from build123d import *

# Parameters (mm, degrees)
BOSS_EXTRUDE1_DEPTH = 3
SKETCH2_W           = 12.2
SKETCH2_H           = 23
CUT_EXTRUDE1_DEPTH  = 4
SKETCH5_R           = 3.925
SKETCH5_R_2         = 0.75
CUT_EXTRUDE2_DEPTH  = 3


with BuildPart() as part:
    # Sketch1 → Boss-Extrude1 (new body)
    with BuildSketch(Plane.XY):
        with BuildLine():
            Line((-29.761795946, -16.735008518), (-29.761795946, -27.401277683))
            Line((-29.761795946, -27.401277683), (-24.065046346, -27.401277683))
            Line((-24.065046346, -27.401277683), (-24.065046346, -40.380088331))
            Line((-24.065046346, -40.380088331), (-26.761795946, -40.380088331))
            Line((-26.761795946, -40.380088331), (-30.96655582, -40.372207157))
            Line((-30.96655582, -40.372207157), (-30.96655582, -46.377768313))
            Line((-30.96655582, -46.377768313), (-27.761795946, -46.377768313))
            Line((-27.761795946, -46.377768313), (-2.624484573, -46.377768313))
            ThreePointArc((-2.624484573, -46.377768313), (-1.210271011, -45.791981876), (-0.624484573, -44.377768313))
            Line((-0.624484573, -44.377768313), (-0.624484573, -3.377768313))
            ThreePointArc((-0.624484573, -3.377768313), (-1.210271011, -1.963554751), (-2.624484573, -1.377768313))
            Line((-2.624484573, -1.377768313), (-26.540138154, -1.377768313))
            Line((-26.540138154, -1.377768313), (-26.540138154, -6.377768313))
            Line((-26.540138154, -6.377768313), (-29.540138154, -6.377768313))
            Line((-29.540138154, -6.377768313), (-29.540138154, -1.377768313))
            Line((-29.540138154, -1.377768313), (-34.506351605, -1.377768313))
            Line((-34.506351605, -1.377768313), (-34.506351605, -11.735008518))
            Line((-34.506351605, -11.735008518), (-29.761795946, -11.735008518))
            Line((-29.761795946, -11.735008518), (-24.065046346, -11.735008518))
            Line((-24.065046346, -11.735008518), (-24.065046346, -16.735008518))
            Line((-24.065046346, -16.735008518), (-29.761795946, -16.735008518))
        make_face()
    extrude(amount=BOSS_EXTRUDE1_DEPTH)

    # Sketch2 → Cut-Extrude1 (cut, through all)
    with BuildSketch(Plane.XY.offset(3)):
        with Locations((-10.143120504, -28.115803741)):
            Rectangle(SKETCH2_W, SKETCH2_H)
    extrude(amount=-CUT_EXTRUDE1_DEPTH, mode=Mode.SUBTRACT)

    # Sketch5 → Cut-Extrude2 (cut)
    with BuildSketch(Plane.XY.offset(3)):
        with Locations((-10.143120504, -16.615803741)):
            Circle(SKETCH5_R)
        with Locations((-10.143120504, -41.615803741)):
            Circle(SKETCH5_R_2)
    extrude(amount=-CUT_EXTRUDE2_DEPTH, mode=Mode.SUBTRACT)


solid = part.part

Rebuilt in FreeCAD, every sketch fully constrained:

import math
import FreeCAD as App
import Part
import Sketcher
Q = App.Units.Quantity

doc = App.newDocument("Part")
body = doc.addObject("PartDesign::Body", "Body")

# Sketch on XY plane
sketch1 = body.newObject("Sketcher::SketchObject", "Sketch")
sketch1.AttachmentSupport = (doc.getObject("XY_Plane"), [""])
sketch1.MapMode = "FlatFace"
sketch1.addGeometry([
    Part.LineSegment(App.Vector(-29.761796, -16.735009, 0), App.Vector(-29.761796, -27.401278, 0)),  # 0
    Part.LineSegment(App.Vector(-29.761796, -27.401278, 0), App.Vector(-24.065046, -27.401278, 0)),  # 1
    Part.LineSegment(App.Vector(-24.065046, -27.401278, 0), App.Vector(-24.065046, -40.380088, 0)),  # 2
    Part.LineSegment(App.Vector(-24.065046, -40.380088, 0), App.Vector(-26.761796, -40.380088, 0)),  # 3
    Part.LineSegment(App.Vector(-26.761796, -40.380088, 0), App.Vector(-30.966556, -40.372207, 0)),  # 4
    Part.LineSegment(App.Vector(-30.966556, -40.372207, 0), App.Vector(-30.966556, -46.377768, 0)),  # 5
    Part.LineSegment(App.Vector(-30.966556, -46.377768, 0), App.Vector(-2.624485, -46.377768, 0)),  # 6
    Part.ArcOfCircle(Part.Circle(App.Vector(-2.624485, -44.377768, 0), App.Vector(0, 0, 1), 2), math.radians(-90), math.radians(0)),  # 7
    Part.LineSegment(App.Vector(-0.624485, -44.377768, 0), App.Vector(-0.624485, -3.377768, 0)),  # 8
    Part.ArcOfCircle(Part.Circle(App.Vector(-2.624485, -3.377768, 0), App.Vector(0, 0, 1), 2), math.radians(0), math.radians(90)),  # 9
    Part.LineSegment(App.Vector(-2.624485, -1.377768, 0), App.Vector(-26.540138, -1.377768, 0)),  # 10
    Part.LineSegment(App.Vector(-26.540138, -1.377768, 0), App.Vector(-26.540138, -6.377768, 0)),  # 11
    Part.LineSegment(App.Vector(-26.540138, -6.377768, 0), App.Vector(-29.540138, -6.377768, 0)),  # 12
    Part.LineSegment(App.Vector(-29.540138, -6.377768, 0), App.Vector(-29.540138, -1.377768, 0)),  # 13
    Part.LineSegment(App.Vector(-29.540138, -1.377768, 0), App.Vector(-34.506352, -1.377768, 0)),  # 14
    Part.LineSegment(App.Vector(-34.506352, -1.377768, 0), App.Vector(-34.506352, -11.735009, 0)),  # 15
    Part.LineSegment(App.Vector(-34.506352, -11.735009, 0), App.Vector(-24.065046, -11.735009, 0)),  # 16
    Part.LineSegment(App.Vector(-24.065046, -11.735009, 0), App.Vector(-24.065046, -16.735009, 0)),  # 17
    Part.LineSegment(App.Vector(-24.065046, -16.735009, 0), App.Vector(-29.761796, -16.735009, 0)),  # 18
], False)
sketch1.addConstraint([
    Sketcher.Constraint("Coincident", 0, 2, 1, 1),
    Sketcher.Constraint("Coincident", 1, 2, 2, 1),
    Sketcher.Constraint("Coincident", 2, 2, 3, 1),
    Sketcher.Constraint("Coincident", 3, 2, 4, 1),
    Sketcher.Constraint("Coincident", 4, 2, 5, 1),
    Sketcher.Constraint("Coincident", 5, 2, 6, 1),
    Sketcher.Constraint("Tangent", 6, 2, 7, 1),
    Sketcher.Constraint("Tangent", 7, 2, 8, 1),
    Sketcher.Constraint("Tangent", 8, 2, 9, 1),
    Sketcher.Constraint("Tangent", 9, 2, 10, 1),
    Sketcher.Constraint("Coincident", 10, 2, 11, 1),
    Sketcher.Constraint("Coincident", 11, 2, 12, 1),
    Sketcher.Constraint("Coincident", 12, 2, 13, 1),
    Sketcher.Constraint("Coincident", 13, 2, 14, 1),
    Sketcher.Constraint("Coincident", 14, 2, 15, 1),
    Sketcher.Constraint("Coincident", 15, 2, 16, 1),
    Sketcher.Constraint("Coincident", 16, 2, 17, 1),
    Sketcher.Constraint("Coincident", 17, 2, 18, 1),
    Sketcher.Constraint("Coincident", 18, 2, 0, 1),
    Sketcher.Constraint("Vertical", 0),
    Sketcher.Constraint("Horizontal", 1),
    Sketcher.Constraint("Vertical", 2),
    Sketcher.Constraint("Horizontal", 3),
    Sketcher.Constraint("Vertical", 5),
    Sketcher.Constraint("Horizontal", 6),
    Sketcher.Constraint("Vertical", 8),
    Sketcher.Constraint("Horizontal", 10),
    Sketcher.Constraint("Vertical", 11),
    Sketcher.Constraint("Horizontal", 12),
    Sketcher.Constraint("Vertical", 13),
    Sketcher.Constraint("Horizontal", 14),
    Sketcher.Constraint("Vertical", 15),
    Sketcher.Constraint("Horizontal", 16),
    Sketcher.Constraint("Vertical", 17),
    Sketcher.Constraint("Horizontal", 18),
    Sketcher.Constraint("Equal", 7, 9),
    Sketcher.Constraint("Horizontal", 10, 2, 13, 2),
    Sketcher.Constraint("Vertical", 2, 2, 16, 2),
    Sketcher.Constraint("Equal", 13, 17),
    Sketcher.Constraint("Radius", 7, Q("2 mm")),
    Sketcher.Constraint("DistanceX", 12, 2, 12, 1, Q("3 mm")),
    Sketcher.Constraint("DistanceY", 8, 1, 8, 2, Q("41 mm")),
    Sketcher.Constraint("DistanceY", 11, 2, 11, 1, Q("5 mm")),
    Sketcher.Constraint("DistanceX", 0, 2, 3, 2, Q("3 mm")),
    Sketcher.Constraint("DistanceX", 1, 1, 1, 2, Q("5.69675 mm")),
    Sketcher.Constraint("DistanceX", 6, 1, 6, 2, Q("28.342071 mm")),
    Sketcher.Constraint("DistanceY", 0, 2, 0, 1, Q("10.666269 mm")),
    Sketcher.Constraint("DistanceY", 2, 2, 2, 1, Q("12.978811 mm")),
    Sketcher.Constraint("DistanceY", 5, 2, 5, 1, Q("6.005561 mm")),
    Sketcher.Constraint("DistanceY", 15, 2, 15, 1, Q("10.35724 mm")),
    Sketcher.Constraint("DistanceX", 10, 2, 10, 1, Q("23.915654 mm")),
    Sketcher.Constraint("DistanceX", 14, 2, 14, 1, Q("4.966213 mm")),
    Sketcher.Constraint("DistanceX", 16, 1, 16, 2, Q("10.441305 mm")),
    Sketcher.Constraint("DistanceY", 7, 3, -1, 1, Q("44.377768 mm")),
    Sketcher.Constraint("DistanceX", 10, 2, -1, 1, Q("26.540138 mm")),
])
pad1 = body.newObject("PartDesign::Pad", "Pad")
pad1.Profile = sketch1
pad1.Length = 3

# Sketch on XY plane
sketch2 = body.newObject("Sketcher::SketchObject", "Sketch001")
sketch2.AttachmentSupport = (doc.getObject("XY_Plane"), [""])
sketch2.MapMode = "FlatFace"
sketch2.AttachmentOffset = App.Placement(App.Vector(0, 0, 3), App.Rotation())
sketch2.addGeometry([
    Part.LineSegment(App.Vector(-16.243121, -16.615804, 0), App.Vector(-16.243121, -39.615804, 0)),
    Part.LineSegment(App.Vector(-16.243121, -39.615804, 0), App.Vector(-4.043121, -39.615804, 0)),
    Part.LineSegment(App.Vector(-4.043121, -39.615804, 0), App.Vector(-4.043121, -16.615804, 0)),
    Part.LineSegment(App.Vector(-4.043121, -16.615804, 0), App.Vector(-16.243121, -16.615804, 0)),
], False)
sketch2.addConstraint([
    Sketcher.Constraint("Coincident", 0, 2, 1, 1),
    Sketcher.Constraint("Coincident", 1, 2, 2, 1),
    Sketcher.Constraint("Coincident", 2, 2, 3, 1),
    Sketcher.Constraint("Coincident", 3, 2, 0, 1),
    Sketcher.Constraint("Vertical", 0),
    Sketcher.Constraint("Horizontal", 1),
    Sketcher.Constraint("Vertical", 2),
    Sketcher.Constraint("Horizontal", 3),
    Sketcher.Constraint("DistanceY", 0, 2, 0, 1, Q("23 mm")),
    Sketcher.Constraint("DistanceX", 1, 1, 1, 2, Q("12.2 mm")),
    Sketcher.Constraint("DistanceX", 0, 2, -1, 1, Q("16.243121 mm")),
    Sketcher.Constraint("DistanceY", 0, 2, -1, 1, Q("39.615804 mm")),
])
pocket1 = body.newObject("PartDesign::Pocket", "Pocket")
pocket1.Profile = sketch2
pocket1.Type = "ThroughAll"

# Sketch on XY plane
sketch3 = body.newObject("Sketcher::SketchObject", "Sketch002")
sketch3.AttachmentSupport = (doc.getObject("XY_Plane"), [""])
sketch3.MapMode = "FlatFace"
sketch3.AttachmentOffset = App.Placement(App.Vector(0, 0, 3), App.Rotation())
sketch3.addGeometry([
    Part.Circle(App.Vector(-10.143121, -16.615804, 0), App.Vector(0, 0, 1), 3.925),
    Part.Circle(App.Vector(-10.143121, -41.615804, 0), App.Vector(0, 0, 1), 0.75),
], False)
sketch3.addConstraint([
    Sketcher.Constraint("Vertical", 0, 3, 1, 3),
    Sketcher.Constraint("Diameter", 1, Q("1.5 mm")),
    Sketcher.Constraint("Diameter", 0, Q("7.85 mm")),
    Sketcher.Constraint("DistanceY", 1, 3, 0, 3, Q("25 mm")),
    Sketcher.Constraint("DistanceX", 0, 3, -1, 1, Q("10.143121 mm")),
    Sketcher.Constraint("DistanceY", 0, 3, -1, 1, Q("16.615804 mm")),
])
pocket2 = body.newObject("PartDesign::Pocket", "Pocket001")
pocket2.Profile = sketch3
pocket2.Length = 3

doc.recompute()
